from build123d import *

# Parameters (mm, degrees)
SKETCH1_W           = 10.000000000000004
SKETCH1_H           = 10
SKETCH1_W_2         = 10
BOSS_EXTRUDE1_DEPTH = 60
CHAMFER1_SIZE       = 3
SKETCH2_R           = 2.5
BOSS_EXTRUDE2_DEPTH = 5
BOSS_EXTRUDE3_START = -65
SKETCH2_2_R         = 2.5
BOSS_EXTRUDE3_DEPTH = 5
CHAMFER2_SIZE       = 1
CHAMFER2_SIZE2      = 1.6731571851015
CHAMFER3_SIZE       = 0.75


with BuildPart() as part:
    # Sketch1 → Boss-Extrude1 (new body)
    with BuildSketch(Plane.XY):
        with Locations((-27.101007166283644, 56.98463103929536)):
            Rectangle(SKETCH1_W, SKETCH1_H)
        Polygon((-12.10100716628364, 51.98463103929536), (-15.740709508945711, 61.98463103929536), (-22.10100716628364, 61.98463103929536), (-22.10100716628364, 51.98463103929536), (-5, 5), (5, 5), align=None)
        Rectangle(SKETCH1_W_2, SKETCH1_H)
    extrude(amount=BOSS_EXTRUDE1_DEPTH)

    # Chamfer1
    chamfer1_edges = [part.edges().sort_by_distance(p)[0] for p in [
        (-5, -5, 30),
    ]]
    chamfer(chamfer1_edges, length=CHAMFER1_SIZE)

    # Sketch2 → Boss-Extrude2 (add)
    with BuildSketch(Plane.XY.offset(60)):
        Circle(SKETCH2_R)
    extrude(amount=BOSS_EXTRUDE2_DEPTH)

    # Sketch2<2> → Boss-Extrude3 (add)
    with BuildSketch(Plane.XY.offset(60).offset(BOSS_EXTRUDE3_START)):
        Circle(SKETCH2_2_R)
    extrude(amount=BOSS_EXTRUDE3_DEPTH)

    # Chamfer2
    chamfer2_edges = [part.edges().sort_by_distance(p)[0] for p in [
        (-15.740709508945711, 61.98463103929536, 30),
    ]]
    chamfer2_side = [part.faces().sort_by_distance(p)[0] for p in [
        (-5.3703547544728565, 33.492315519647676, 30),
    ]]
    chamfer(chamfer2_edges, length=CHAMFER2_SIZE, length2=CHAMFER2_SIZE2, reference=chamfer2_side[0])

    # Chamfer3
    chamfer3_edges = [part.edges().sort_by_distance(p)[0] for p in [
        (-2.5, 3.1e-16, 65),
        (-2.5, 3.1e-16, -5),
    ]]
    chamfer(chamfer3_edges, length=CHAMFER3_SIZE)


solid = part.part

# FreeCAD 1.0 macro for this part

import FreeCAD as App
import Part
import Sketcher
from FreeCAD import Vector
Q = App.Units.Quantity


def edges_at(feature, points):
    """Names of the edges that pass closest to the given points."""
    edges = feature.Shape.Edges
    near = lambda p: min(range(len(edges)), key=lambda i: edges[i].distToShape(Part.Vertex(*p))[0])
    return sorted({f"Edge{near(p) + 1}" for p in points})

doc = App.newDocument("Part")
body = doc.addObject("PartDesign::Body", "Body")

# Sketch on XY plane
sketch1 = doc.addObject("Sketcher::SketchObject", "Sketch")
body.addObject(sketch1)
sketch1.AttachmentSupport = (doc.XY_Plane, [""])
sketch1.MapMode = "FlatFace"
sketch1.addGeometry([
    Part.LineSegment(Vector(-32.101007, 61.984631, 0), Vector(-32.101007, 51.984631, 0)),  # 0
    Part.LineSegment(Vector(-32.101007, 51.984631, 0), Vector(-22.101007, 51.984631, 0)),  # 1
    Part.LineSegment(Vector(-22.101007, 51.984631, 0), Vector(-5, 5, 0)),  # 2
    Part.LineSegment(Vector(-5, 5, 0), Vector(-5, -5, 0)),  # 3
    Part.LineSegment(Vector(-5, -5, 0), Vector(5, -5, 0)),  # 4
    Part.LineSegment(Vector(5, -5, 0), Vector(5, 5, 0)),  # 5
    Part.LineSegment(Vector(5, 5, 0), Vector(-15.74071, 61.984631, 0)),  # 6
    Part.LineSegment(Vector(-15.74071, 61.984631, 0), Vector(-32.101007, 61.984631, 0)),  # 7
], False)
sketch1.addConstraint([
    Sketcher.Constraint("Coincident", 0, 2, 1, 1),
    Sketcher.Constraint("Coincident", 1, 2, 2, 1),
    Sketcher.Constraint("Coincident", 2, 2, 3, 1),
    Sketcher.Constraint("Coincident", 3, 2, 4, 1),
    Sketcher.Constraint("Coincident", 4, 2, 5, 1),
    Sketcher.Constraint("Coincident", 5, 2, 6, 1),
    Sketcher.Constraint("Coincident", 6, 2, 7, 1),
    Sketcher.Constraint("Coincident", 7, 2, 0, 1),
    Sketcher.Constraint("Vertical", 0),
    Sketcher.Constraint("Horizontal", 1),
    Sketcher.Constraint("Vertical", 3),
    Sketcher.Constraint("Horizontal", 4),
    Sketcher.Constraint("Vertical", 5),
    Sketcher.Constraint("Horizontal", 7),
    Sketcher.Constraint("Symmetric", 2, 2, 4, 2, -1, 1),
    Sketcher.Constraint("Parallel", 2, 6),
    Sketcher.Constraint("Horizontal", 2, 2, 5, 2),
    Sketcher.Constraint("Equal", 1, 4),
    Sketcher.Constraint("Equal", 4, 0),
    Sketcher.Constraint("Equal", 0, 3),
    Sketcher.Constraint("DistanceX", 1, 1, 1, 2, 10.0),
    Sketcher.Constraint("Angle", 2, Q("-70 deg")),
    Sketcher.Constraint("Distance", 2, 50.0),
])
pad1 = doc.addObject("PartDesign::Pad", "Pad")
body.addObject(pad1)
pad1.Profile = sketch1
pad1.Length = 60
doc.recompute()

chamfer = doc.addObject("PartDesign::Chamfer", "Chamfer")
body.addObject(chamfer)
chamfer.Base = (pad1, edges_at(pad1, [(-5, -5, 30)]))
chamfer.Size = 3

# Sketch on XY plane
sketch2 = doc.addObject("Sketcher::SketchObject", "Sketch001")
body.addObject(sketch2)
sketch2.AttachmentSupport = (doc.XY_Plane, [""])
sketch2.MapMode = "FlatFace"
sketch2.AttachmentOffset = App.Placement(Vector(0, 0, 60), App.Rotation())
sketch2.addGeometry(Part.Circle(Vector(0, 0, 0), Vector(0, 0, 1), 2.5), False)
sketch2.addConstraint([
    Sketcher.Constraint("Coincident", 0, 3, -1, 1),
    Sketcher.Constraint("Diameter", 0, 5.0),
])
pad2 = doc.addObject("PartDesign::Pad", "Pad001")
body.addObject(pad2)
pad2.Profile = sketch2
pad2.Length = 5

# Sketch on XY plane
sketch3 = doc.addObject("Sketcher::SketchObject", "Sketch002")
body.addObject(sketch3)
sketch3.AttachmentSupport = (doc.XY_Plane, [""])
sketch3.MapMode = "FlatFace"
sketch3.AttachmentOffset = App.Placement(Vector(0, 0, -5), App.Rotation())
sketch3.addGeometry(Part.Circle(Vector(0, 0, 0), Vector(0, 0, 1), 2.5), False)
sketch3.addConstraint([
    Sketcher.Constraint("Coincident", 0, 3, -1, 1),
    Sketcher.Constraint("Diameter", 0, 5.0),
])
pad3 = doc.addObject("PartDesign::Pad", "Pad002")
body.addObject(pad3)
pad3.Profile = sketch3
pad3.Length = 5
doc.recompute()

chamfer2 = doc.addObject("PartDesign::Chamfer", "Chamfer001")
body.addObject(chamfer2)
chamfer2.Base = (pad3, edges_at(pad3, [(-15.741, 61.985, 30)]))
chamfer2.ChamferType = "Two distances"
chamfer2.Size = 1
chamfer2.Size2 = 1.673157
doc.recompute()

chamfer3 = doc.addObject("PartDesign::Chamfer", "Chamfer002")
body.addObject(chamfer3)
chamfer3.Base = (chamfer2, edges_at(chamfer2, [(-2.5, 0, 65), (-2.5, 0, -5)]))
chamfer3.Size = 0.75

doc.recompute()
